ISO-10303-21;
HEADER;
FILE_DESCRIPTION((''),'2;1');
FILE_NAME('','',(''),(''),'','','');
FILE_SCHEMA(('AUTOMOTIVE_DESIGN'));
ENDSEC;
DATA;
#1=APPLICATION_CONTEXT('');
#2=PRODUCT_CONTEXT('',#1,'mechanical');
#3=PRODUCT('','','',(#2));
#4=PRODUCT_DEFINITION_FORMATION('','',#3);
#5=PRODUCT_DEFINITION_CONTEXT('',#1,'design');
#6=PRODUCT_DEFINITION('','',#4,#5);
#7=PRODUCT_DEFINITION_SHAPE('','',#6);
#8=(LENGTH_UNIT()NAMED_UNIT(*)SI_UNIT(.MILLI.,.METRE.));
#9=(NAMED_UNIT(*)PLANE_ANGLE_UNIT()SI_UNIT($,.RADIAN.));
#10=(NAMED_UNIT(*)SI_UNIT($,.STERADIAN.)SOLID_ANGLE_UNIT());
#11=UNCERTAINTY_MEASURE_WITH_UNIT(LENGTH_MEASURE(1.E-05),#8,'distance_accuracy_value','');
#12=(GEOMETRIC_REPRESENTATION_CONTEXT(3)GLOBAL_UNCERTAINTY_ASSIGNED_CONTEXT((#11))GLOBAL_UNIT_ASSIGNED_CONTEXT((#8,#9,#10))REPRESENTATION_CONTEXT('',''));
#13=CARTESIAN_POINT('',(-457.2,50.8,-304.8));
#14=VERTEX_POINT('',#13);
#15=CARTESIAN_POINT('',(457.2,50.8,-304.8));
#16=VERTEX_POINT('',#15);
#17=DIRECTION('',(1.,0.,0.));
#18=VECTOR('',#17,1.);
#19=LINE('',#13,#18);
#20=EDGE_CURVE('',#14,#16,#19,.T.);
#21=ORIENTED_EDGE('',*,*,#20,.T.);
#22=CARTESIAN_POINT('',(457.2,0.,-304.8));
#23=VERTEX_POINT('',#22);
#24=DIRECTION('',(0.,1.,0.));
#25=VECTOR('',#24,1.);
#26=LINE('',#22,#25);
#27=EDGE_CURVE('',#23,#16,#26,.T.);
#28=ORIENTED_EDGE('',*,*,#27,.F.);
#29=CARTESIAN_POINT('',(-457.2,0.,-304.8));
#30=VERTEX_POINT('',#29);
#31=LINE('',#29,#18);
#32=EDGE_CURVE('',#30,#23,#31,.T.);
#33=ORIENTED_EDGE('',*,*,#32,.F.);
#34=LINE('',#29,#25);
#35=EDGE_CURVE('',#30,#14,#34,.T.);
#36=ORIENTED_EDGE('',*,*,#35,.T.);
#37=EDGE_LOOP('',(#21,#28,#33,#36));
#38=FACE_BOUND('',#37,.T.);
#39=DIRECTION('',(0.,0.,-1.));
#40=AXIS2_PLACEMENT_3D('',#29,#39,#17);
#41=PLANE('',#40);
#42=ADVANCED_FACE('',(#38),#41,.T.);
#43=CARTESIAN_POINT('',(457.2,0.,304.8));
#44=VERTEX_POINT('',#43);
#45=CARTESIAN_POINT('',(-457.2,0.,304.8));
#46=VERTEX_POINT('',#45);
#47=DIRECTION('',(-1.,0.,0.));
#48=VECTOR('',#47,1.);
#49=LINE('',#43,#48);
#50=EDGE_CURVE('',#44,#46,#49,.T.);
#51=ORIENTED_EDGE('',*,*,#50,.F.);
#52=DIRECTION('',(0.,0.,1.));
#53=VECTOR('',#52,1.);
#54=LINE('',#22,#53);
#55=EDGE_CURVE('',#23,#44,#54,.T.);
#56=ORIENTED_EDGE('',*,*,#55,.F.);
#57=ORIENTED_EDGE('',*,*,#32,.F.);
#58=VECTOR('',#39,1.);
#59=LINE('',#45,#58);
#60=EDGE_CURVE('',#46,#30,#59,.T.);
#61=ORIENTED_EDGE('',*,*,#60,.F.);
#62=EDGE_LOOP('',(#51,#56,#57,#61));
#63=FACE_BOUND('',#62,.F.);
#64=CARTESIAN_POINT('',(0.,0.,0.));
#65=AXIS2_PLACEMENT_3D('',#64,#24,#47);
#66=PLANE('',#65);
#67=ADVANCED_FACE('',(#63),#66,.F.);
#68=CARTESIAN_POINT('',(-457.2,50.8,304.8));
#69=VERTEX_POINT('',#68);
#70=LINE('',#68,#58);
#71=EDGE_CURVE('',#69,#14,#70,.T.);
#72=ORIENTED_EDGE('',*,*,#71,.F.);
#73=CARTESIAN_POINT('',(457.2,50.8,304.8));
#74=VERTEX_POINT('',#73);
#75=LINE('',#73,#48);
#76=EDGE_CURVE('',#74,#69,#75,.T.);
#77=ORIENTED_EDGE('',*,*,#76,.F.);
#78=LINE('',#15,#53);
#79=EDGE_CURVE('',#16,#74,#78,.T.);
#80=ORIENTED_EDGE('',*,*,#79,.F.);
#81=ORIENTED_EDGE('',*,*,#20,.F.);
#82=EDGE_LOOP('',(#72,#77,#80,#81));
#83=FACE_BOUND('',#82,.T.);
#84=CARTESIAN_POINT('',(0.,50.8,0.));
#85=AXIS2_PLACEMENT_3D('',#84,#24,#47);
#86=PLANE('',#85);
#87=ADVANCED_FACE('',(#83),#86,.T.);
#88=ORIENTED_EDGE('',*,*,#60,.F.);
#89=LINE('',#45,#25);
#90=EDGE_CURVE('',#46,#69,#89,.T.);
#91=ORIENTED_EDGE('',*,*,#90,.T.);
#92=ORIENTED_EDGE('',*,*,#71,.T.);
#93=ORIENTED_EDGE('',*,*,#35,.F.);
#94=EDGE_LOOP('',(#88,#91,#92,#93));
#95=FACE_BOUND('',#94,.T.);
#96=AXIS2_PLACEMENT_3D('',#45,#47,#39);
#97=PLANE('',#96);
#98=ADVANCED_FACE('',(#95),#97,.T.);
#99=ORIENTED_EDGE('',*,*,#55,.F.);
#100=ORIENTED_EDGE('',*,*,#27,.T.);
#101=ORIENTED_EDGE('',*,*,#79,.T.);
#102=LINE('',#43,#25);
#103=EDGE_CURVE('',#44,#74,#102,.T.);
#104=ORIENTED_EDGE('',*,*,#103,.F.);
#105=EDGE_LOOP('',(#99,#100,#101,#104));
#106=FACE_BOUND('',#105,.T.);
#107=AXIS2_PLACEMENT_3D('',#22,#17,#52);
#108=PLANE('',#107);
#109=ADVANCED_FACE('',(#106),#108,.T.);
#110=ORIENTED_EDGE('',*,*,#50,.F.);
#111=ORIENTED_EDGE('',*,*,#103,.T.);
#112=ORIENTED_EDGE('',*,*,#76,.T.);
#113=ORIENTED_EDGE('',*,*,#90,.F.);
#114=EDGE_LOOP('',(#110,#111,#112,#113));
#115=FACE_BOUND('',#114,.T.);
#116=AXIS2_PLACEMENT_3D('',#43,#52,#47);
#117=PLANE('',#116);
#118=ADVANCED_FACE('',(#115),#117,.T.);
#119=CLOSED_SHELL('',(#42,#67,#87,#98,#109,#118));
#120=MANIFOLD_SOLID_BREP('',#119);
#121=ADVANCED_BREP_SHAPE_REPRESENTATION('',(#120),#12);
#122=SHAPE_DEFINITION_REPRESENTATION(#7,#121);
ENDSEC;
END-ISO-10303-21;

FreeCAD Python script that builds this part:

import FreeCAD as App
import Part
import Sketcher

V = App.Vector
Q = App.Units.Quantity

doc = App.newDocument("Part")
body = doc.addObject("PartDesign::Body", "Body")

sketch1 = body.newObject("Sketcher::SketchObject", "Sketch")
sketch1.AttachmentSupport = (doc.getObject("XZ_Plane"), [""])
sketch1.MapMode = "FlatFace"
sketch1.addGeometry(Part.LineSegment(V(457, -305, 0), V(-457, -305, 0)), False)
sketch1.addGeometry(Part.LineSegment(V(-457, -305, 0), V(-457, 305, 0)), False)
sketch1.addGeometry(Part.LineSegment(V(-457, 305, 0), V(457, 305, 0)), False)
sketch1.addGeometry(Part.LineSegment(V(457, 305, 0), V(457, -305, 0)), False)
sketch1.addConstraint(Sketcher.Constraint("Coincident", 0, 2, 1, 1))
sketch1.addConstraint(Sketcher.Constraint("Coincident", 1, 2, 2, 1))
sketch1.addConstraint(Sketcher.Constraint("Coincident", 2, 2, 3, 1))
sketch1.addConstraint(Sketcher.Constraint("Coincident", 3, 2, 0, 1))
sketch1.addConstraint(Sketcher.Constraint("Horizontal", 0))
sketch1.addConstraint(Sketcher.Constraint("Vertical", 1))
sketch1.addConstraint(Sketcher.Constraint("Horizontal", 2))
sketch1.addConstraint(Sketcher.Constraint("Vertical", 3))
sketch1.addConstraint(Sketcher.Constraint("Symmetric", 0, 2, 2, 2, -1, 1))
sketch1.addConstraint(Sketcher.Constraint("DistanceX", 0, 2, 0, 1, Q("36 in")))
sketch1.addConstraint(Sketcher.Constraint("DistanceY", 1, 1, 1, 2, Q("24 in")))
pad1 = body.newObject("PartDesign::Pad", "Pad")
pad1.Profile = sketch1
pad1.Length = Q("2 in")
pad1.Reversed = True

doc.recompute()
